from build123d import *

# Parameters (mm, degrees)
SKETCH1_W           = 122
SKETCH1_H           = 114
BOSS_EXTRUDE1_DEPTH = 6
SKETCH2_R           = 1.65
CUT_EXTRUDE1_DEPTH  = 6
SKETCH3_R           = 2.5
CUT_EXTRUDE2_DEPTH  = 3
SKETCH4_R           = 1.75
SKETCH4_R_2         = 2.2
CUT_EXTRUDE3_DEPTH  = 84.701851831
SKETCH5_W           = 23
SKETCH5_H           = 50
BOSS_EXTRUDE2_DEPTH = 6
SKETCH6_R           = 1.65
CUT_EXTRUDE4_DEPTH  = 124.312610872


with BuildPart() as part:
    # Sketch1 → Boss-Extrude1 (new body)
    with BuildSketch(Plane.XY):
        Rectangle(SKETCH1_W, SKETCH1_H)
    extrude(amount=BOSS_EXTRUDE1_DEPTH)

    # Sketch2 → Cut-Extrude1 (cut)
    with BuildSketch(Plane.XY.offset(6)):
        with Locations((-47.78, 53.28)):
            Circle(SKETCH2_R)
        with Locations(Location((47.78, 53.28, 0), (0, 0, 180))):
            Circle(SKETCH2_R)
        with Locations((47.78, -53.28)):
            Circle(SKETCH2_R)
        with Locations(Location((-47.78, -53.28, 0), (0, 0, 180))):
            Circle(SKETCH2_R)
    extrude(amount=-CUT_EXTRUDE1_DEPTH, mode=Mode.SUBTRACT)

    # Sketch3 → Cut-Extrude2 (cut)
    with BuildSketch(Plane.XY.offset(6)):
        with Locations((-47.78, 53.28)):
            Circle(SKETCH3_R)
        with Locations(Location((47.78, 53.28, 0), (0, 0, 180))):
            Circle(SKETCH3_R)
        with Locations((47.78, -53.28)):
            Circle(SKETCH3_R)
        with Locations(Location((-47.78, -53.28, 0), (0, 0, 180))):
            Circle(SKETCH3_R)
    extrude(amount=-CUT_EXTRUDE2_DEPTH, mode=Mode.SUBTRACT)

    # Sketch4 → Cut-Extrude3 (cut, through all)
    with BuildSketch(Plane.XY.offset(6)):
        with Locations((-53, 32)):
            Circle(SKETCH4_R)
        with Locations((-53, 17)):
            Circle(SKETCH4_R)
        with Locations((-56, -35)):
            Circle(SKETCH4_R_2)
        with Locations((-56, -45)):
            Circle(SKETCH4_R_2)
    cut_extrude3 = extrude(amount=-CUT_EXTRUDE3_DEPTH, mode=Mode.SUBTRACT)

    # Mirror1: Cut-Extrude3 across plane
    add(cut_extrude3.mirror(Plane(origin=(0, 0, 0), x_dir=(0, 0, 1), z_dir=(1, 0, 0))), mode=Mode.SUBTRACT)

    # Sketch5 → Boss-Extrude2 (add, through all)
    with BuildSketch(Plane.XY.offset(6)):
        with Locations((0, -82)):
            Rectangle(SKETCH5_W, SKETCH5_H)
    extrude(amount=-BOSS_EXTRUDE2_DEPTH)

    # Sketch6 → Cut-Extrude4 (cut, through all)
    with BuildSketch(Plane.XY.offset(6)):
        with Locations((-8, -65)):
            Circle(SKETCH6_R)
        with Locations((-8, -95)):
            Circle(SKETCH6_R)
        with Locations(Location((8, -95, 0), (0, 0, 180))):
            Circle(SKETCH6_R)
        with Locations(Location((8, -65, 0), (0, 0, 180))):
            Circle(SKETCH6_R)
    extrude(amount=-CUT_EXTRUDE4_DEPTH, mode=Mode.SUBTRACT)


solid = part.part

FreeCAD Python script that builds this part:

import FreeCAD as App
import Part
import Sketcher
from FreeCAD import Vector

doc = App.newDocument("Part")
params = doc.addObject("Spreadsheet::Sheet", "Params")
for row, (alias, value) in enumerate([
    ("sketch1_width", "122 mm"),
    ("sketch1_height", "114 mm"),
    ("pad1_length", "6 mm"),
    ("sketch2_diameter", "3.3 mm"),
    ("pocket1_length", "6 mm"),
    ("sketch3_diameter", "5 mm"),
    ("pocket2_length", "3 mm"),
    ("sketch4_diameter", "3.5 mm"),
    ("sketch4_diameter2", "4.4 mm"),
    ("sketch5_width", "23 mm"),
    ("sketch5_height", "50 mm"),
    ("pad2_length", "6 mm"),
    ("sketch6_diameter", "3.3 mm"),
], start=1):
    params.set(f"A{row}", alias)
    params.set(f"B{row}", "=" + value)
    params.setAlias(f"B{row}", alias)

body = doc.addObject("PartDesign::Body", "Body")

# Sketch on XY plane
sketch1 = body.newObject("Sketcher::SketchObject", "Sketch")
sketch1.AttachmentSupport = (doc.getObject("XY_Plane"), [""])
sketch1.MapMode = "FlatFace"
sketch1.addGeometry([
    Part.LineSegment(Vector(-61, 57, 0), Vector(-61, -57, 0)),
    Part.LineSegment(Vector(-61, -57, 0), Vector(61, -57, 0)),
    Part.LineSegment(Vector(61, -57, 0), Vector(61, 57, 0)),
    Part.LineSegment(Vector(61, 57, 0), Vector(-61, 57, 0)),
], False)
sketch1.addConstraint([
    Sketcher.Constraint("Coincident", 0, 2, 1, 1),
    Sketcher.Constraint("Coincident", 1, 2, 2, 1),
    Sketcher.Constraint("Coincident", 2, 2, 3, 1),
    Sketcher.Constraint("Coincident", 3, 2, 0, 1),
    Sketcher.Constraint("Vertical", 0),
    Sketcher.Constraint("Horizontal", 1),
    Sketcher.Constraint("Vertical", 2),
    Sketcher.Constraint("Horizontal", 3),
    Sketcher.Constraint("Symmetric", 0, 2, 2, 2, -1, 1),
    Sketcher.Constraint("DistanceX", 1, 1, 1, 2, 122.0),
    Sketcher.Constraint("DistanceY", 0, 2, 0, 1, 114.0),
])
sketch1.setExpression("Constraints[9]", "Params.sketch1_width")
sketch1.setExpression("Constraints[10]", "Params.sketch1_height")
pad1 = body.newObject("PartDesign::Pad", "Pad")
pad1.Profile = sketch1
pad1.setExpression("Length", "Params.pad1_length")

# Sketch on XY plane
sketch2 = body.newObject("Sketcher::SketchObject", "Sketch001")
sketch2.AttachmentSupport = (doc.getObject("XY_Plane"), [""])
sketch2.MapMode = "FlatFace"
sketch2.AttachmentOffset = App.Placement(Vector(0, 0, 6), App.Rotation())
sketch2.addGeometry([
    Part.Circle(Vector(-47.78, 53.28, 0), Vector(0, 0, 1), 1.65),
    Part.Circle(Vector(47.78, 53.28, 0), Vector(0, 0, 1), 1.65),
    Part.Circle(Vector(47.78, -53.28, 0), Vector(0, 0, 1), 1.65),
    Part.Circle(Vector(-47.78, -53.28, 0), Vector(0, 0, 1), 1.65),
], False)
sketch2.addConstraint([
    Sketcher.Constraint("Equal", 0, 1),
    Sketcher.Constraint("Equal", 1, 2),
    Sketcher.Constraint("Equal", 2, 3),
    Sketcher.Constraint("Symmetric", 0, 3, 2, 3, -1, 1),
    Sketcher.Constraint("Symmetric", 1, 3, 3, 3, -1, 1),
    Sketcher.Constraint("Symmetric", 0, 3, 1, 3, -2),
    Sketcher.Constraint("Diameter", 0, 3.3),
    Sketcher.Constraint("DistanceX", 0, 3, -1, 1, 47.78),
    Sketcher.Constraint("DistanceY", -1, 1, 0, 3, 53.28),
])
sketch2.setExpression("Constraints[6]", "Params.sketch2_diameter")
pocket1 = body.newObject("PartDesign::Pocket", "Pocket")
pocket1.Profile = sketch2
pocket1.setExpression("Length", "Params.pocket1_length")

# Sketch on XY plane
sketch3 = body.newObject("Sketcher::SketchObject", "Sketch002")
sketch3.AttachmentSupport = (doc.getObject("XY_Plane"), [""])
sketch3.MapMode = "FlatFace"
sketch3.AttachmentOffset = App.Placement(Vector(0, 0, 6), App.Rotation())
sketch3.addGeometry([
    Part.Circle(Vector(-47.78, 53.28, 0), Vector(0, 0, 1), 2.5),
    Part.Circle(Vector(47.78, 53.28, 0), Vector(0, 0, 1), 2.5),
    Part.Circle(Vector(47.78, -53.28, 0), Vector(0, 0, 1), 2.5),
    Part.Circle(Vector(-47.78, -53.28, 0), Vector(0, 0, 1), 2.5),
], False)
sketch3.addConstraint([
    Sketcher.Constraint("Equal", 0, 1),
    Sketcher.Constraint("Equal", 1, 2),
    Sketcher.Constraint("Equal", 2, 3),
    Sketcher.Constraint("Symmetric", 0, 3, 2, 3, -1, 1),
    Sketcher.Constraint("Symmetric", 1, 3, 3, 3, -1, 1),
    Sketcher.Constraint("Symmetric", 0, 3, 1, 3, -2),
    Sketcher.Constraint("Diameter", 0, 5.0),
    Sketcher.Constraint("DistanceX", 0, 3, -1, 1, 47.78),
    Sketcher.Constraint("DistanceY", -1, 1, 0, 3, 53.28),
])
sketch3.setExpression("Constraints[6]", "Params.sketch3_diameter")
pocket2 = body.newObject("PartDesign::Pocket", "Pocket001")
pocket2.Profile = sketch3
pocket2.setExpression("Length", "Params.pocket2_length")

# Sketch on XY plane
sketch4 = body.newObject("Sketcher::SketchObject", "Sketch003")
sketch4.AttachmentSupport = (doc.getObject("XY_Plane"), [""])
sketch4.MapMode = "FlatFace"
sketch4.AttachmentOffset = App.Placement(Vector(0, 0, 6), App.Rotation())
sketch4.addGeometry([
    Part.Circle(Vector(-53, 32, 0), Vector(0, 0, 1), 1.75),
    Part.Circle(Vector(-53, 17, 0), Vector(0, 0, 1), 1.75),
    Part.Circle(Vector(-56, -35, 0), Vector(0, 0, 1), 2.2),
    Part.Circle(Vector(-56, -45, 0), Vector(0, 0, 1), 2.2),
], False)
sketch4.addConstraint([
    Sketcher.Constraint("Equal", 0, 1),
    Sketcher.Constraint("Equal", 2, 3),
    Sketcher.Constraint("Vertical", 0, 3, 1, 3),
    Sketcher.Constraint("Vertical", 2, 3, 3, 3),
    Sketcher.Constraint("Diameter", 0, 3.5),
    Sketcher.Constraint("Diameter", 2, 4.4),
    Sketcher.Constraint("DistanceX", 0, 3, -1, 1, 53.0),
    Sketcher.Constraint("DistanceY", -1, 1, 0, 3, 32.0),
    Sketcher.Constraint("DistanceY", -1, 1, 1, 3, 17.0),
    Sketcher.Constraint("DistanceX", 2, 3, -1, 1, 56.0),
    Sketcher.Constraint("DistanceY", 2, 3, -1, 1, 35.0),
    Sketcher.Constraint("DistanceY", 3, 3, -1, 1, 45.0),
])
sketch4.setExpression("Constraints[4]", "Params.sketch4_diameter")
sketch4.setExpression("Constraints[5]", "Params.sketch4_diameter2")
pocket3 = body.newObject("PartDesign::Pocket", "Pocket002")
pocket3.Profile = sketch4
pocket3.Type = "ThroughAll"
doc.recompute()

mirrored = body.newObject("PartDesign::Mirrored", "Mirrored")
mirrored.Originals = [pocket3]
mirrored.MirrorPlane = (doc.getObject("YZ_Plane"), [""])
body.Tip = mirrored

# Sketch on XY plane
sketch5 = body.newObject("Sketcher::SketchObject", "Sketch004")
sketch5.AttachmentSupport = (doc.getObject("XY_Plane"), [""])
sketch5.MapMode = "FlatFace"
sketch5.AttachmentOffset = App.Placement(Vector(0, 0, 6), App.Rotation())
sketch5.addGeometry([
    Part.LineSegment(Vector(-11.5, -57, 0), Vector(-11.5, -107, 0)),
    Part.LineSegment(Vector(-11.5, -107, 0), Vector(11.5, -107, 0)),
    Part.LineSegment(Vector(11.5, -107, 0), Vector(11.5, -57, 0)),
    Part.LineSegment(Vector(11.5, -57, 0), Vector(-11.5, -57, 0)),
], False)
sketch5.addConstraint([
    Sketcher.Constraint("Coincident", 0, 2, 1, 1),
    Sketcher.Constraint("Coincident", 1, 2, 2, 1),
    Sketcher.Constraint("Coincident", 2, 2, 3, 1),
    Sketcher.Constraint("Coincident", 3, 2, 0, 1),
    Sketcher.Constraint("Vertical", 0),
    Sketcher.Constraint("Horizontal", 1),
    Sketcher.Constraint("Vertical", 2),
    Sketcher.Constraint("Horizontal", 3),
    Sketcher.Constraint("DistanceX", 1, 1, 1, 2, 23.0),
    Sketcher.Constraint("DistanceY", 0, 2, 0, 1, 50.0),
    Sketcher.Constraint("DistanceY", 0, 2, -1, 1, 107.0),
    Sketcher.Constraint("DistanceX", 0, 2, -1, 1, 11.5),
])
sketch5.setExpression("Constraints[8]", "Params.sketch5_width")
sketch5.setExpression("Constraints[9]", "Params.sketch5_height")
pad2 = body.newObject("PartDesign::Pad", "Pad001")
pad2.Profile = sketch5
pad2.setExpression("Length", "Params.pad2_length")
pad2.Reversed = True

# Sketch on XY plane
sketch6 = body.newObject("Sketcher::SketchObject", "Sketch005")
sketch6.AttachmentSupport = (doc.getObject("XY_Plane"), [""])
sketch6.MapMode = "FlatFace"
sketch6.AttachmentOffset = App.Placement(Vector(0, 0, 6), App.Rotation())
sketch6.addGeometry([
    Part.Circle(Vector(-8, -65, 0), Vector(0, 0, 1), 1.65),
    Part.Circle(Vector(-8, -95, 0), Vector(0, 0, 1), 1.65),
    Part.Circle(Vector(8, -95, 0), Vector(0, 0, 1), 1.65),
    Part.Circle(Vector(8, -65, 0), Vector(0, 0, 1), 1.65),
], False)
sketch6.addConstraint([
    Sketcher.Constraint("Equal", 0, 1),
    Sketcher.Constraint("Equal", 1, 2),
    Sketcher.Constraint("Equal", 2, 3),
    Sketcher.Constraint("Symmetric", 1, 3, 2, 3, -2),
    Sketcher.Constraint("Symmetric", 0, 3, 3, 3, -2),
    Sketcher.Constraint("Vertical", 0, 3, 1, 3),
    Sketcher.Constraint("Diameter", 0, 3.3),
    Sketcher.Constraint("DistanceX", 0, 3, -1, 1, 8.0),
    Sketcher.Constraint("DistanceY", 0, 3, -1, 1, 65.0),
    Sketcher.Constraint("DistanceY", 1, 3, -1, 1, 95.0),
])
sketch6.setExpression("Constraints[6]", "Params.sketch6_diameter")
pocket4 = body.newObject("PartDesign::Pocket", "Pocket003")
pocket4.Profile = sketch6
pocket4.Type = "ThroughAll"

doc.recompute()
